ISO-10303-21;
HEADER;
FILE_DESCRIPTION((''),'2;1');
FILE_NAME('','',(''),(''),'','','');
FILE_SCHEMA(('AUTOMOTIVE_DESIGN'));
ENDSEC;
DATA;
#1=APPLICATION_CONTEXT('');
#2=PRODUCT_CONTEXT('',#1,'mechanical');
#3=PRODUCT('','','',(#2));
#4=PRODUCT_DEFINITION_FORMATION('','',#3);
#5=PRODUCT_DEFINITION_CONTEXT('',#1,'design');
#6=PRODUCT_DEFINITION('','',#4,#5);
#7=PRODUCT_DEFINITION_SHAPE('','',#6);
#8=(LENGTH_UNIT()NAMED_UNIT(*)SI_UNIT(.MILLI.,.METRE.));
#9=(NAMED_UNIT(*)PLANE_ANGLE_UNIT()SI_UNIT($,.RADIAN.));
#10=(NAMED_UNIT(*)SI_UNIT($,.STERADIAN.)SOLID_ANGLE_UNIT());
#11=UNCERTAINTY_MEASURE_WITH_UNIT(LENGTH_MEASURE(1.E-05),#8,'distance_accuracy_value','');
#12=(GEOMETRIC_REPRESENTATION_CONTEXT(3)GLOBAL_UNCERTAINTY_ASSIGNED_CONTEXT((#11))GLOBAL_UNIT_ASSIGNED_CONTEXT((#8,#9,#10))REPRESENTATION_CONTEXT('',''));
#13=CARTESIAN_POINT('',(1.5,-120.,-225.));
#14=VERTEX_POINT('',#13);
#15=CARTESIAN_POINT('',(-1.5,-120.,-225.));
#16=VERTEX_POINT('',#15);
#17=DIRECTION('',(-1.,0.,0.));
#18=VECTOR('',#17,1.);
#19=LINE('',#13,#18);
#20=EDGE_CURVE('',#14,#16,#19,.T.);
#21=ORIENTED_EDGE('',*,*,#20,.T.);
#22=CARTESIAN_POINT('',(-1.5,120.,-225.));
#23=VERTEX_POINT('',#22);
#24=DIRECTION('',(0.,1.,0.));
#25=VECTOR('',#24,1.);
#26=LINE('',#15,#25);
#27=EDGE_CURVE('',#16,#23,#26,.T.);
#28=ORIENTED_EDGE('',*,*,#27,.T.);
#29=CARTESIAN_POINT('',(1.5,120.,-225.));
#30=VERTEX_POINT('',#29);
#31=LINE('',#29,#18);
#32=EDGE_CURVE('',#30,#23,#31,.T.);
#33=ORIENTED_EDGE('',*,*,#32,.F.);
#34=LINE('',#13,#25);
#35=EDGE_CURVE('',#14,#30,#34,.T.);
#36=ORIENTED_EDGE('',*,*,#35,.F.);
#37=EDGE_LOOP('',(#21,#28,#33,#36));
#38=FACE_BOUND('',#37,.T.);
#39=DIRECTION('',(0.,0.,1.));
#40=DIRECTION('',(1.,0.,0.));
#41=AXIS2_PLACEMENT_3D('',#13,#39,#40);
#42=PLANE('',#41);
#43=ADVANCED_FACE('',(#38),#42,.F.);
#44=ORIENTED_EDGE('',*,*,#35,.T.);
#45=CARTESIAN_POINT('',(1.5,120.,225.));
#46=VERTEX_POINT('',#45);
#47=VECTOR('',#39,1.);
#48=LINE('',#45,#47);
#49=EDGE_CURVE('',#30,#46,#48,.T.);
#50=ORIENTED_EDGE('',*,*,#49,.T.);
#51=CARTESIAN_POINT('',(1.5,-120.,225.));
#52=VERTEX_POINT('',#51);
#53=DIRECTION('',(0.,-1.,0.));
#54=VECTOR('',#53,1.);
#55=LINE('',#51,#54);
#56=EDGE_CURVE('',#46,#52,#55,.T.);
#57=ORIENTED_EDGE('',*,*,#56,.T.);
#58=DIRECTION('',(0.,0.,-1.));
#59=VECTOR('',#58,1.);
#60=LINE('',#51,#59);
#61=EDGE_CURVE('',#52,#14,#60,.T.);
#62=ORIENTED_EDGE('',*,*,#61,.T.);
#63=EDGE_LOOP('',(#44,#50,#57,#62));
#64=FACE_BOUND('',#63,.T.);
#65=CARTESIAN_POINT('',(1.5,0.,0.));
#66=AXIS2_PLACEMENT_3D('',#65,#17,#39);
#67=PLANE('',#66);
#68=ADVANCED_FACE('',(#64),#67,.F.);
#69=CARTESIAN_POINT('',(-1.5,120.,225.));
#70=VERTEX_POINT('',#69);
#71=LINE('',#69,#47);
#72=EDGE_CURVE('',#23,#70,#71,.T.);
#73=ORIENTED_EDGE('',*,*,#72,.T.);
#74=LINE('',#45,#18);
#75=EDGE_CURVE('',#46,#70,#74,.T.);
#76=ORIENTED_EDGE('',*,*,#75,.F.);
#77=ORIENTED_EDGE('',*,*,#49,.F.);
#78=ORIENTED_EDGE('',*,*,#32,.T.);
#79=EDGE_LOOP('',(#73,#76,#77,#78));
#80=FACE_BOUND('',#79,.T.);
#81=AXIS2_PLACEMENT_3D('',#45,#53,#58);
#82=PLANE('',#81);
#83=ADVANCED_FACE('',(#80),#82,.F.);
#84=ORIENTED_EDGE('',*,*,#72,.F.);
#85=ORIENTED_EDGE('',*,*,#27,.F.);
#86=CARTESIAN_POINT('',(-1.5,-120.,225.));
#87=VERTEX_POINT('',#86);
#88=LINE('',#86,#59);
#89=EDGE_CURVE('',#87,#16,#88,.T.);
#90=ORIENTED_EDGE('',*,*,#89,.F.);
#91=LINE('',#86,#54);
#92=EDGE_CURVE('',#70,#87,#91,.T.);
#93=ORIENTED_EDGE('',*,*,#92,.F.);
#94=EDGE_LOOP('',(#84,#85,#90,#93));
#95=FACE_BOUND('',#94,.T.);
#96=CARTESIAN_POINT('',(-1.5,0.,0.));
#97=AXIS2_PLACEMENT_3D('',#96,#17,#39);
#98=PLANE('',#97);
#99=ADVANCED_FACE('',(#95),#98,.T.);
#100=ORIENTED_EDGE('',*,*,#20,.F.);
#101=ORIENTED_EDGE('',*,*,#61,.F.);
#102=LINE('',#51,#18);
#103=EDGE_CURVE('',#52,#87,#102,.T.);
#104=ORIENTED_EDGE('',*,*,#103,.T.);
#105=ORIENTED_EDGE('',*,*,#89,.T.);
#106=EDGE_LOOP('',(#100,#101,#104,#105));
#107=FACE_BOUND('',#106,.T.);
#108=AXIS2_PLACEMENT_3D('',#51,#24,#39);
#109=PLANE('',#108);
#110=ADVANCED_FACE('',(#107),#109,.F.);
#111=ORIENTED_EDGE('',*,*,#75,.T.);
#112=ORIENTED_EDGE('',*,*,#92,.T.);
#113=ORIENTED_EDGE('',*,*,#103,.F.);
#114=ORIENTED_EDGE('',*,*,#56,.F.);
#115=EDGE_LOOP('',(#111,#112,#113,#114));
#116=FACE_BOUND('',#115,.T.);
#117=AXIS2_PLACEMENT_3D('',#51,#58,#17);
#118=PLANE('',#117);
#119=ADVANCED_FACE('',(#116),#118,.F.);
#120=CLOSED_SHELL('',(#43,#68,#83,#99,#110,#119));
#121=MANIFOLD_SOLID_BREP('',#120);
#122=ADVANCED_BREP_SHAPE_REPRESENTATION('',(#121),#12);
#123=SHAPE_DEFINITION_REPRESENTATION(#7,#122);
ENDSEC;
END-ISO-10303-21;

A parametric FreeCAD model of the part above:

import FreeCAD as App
import Part
import Sketcher

V = App.Vector
Q = App.Units.Quantity


def add_polygon(sketch, points):
    """Adds a closed chain of lines whose ends are joined by coincident constraints."""
    first, n = sketch.GeometryCount, len(points)
    for a, b in zip(points, points[1:] + points[:1]):
        sketch.addGeometry(Part.LineSegment(App.Vector(*a, 0), App.Vector(*b, 0)), False)
    for i in range(n):
        sketch.addConstraint(Sketcher.Constraint("Coincident", first + i, 2, first + (i + 1) % n, 1))

doc = App.newDocument("Part")
body = doc.addObject("PartDesign::Body", "Body")

# Sketch on YZ plane
sketch1 = doc.addObject("Sketcher::SketchObject", "Sketch")
body.addObject(sketch1)
sketch1.AttachmentSupport = (doc.YZ_Plane, [""])
sketch1.MapMode = "FlatFace"
add_polygon(sketch1, [(120, 225), (-120, 225), (-120, -225), (120, -225)])  # lines 0-3
sketch1.addConstraint([
    Sketcher.Constraint("Horizontal", 0),
    Sketcher.Constraint("Vertical", 1),
    Sketcher.Constraint("Horizontal", 2),
    Sketcher.Constraint("Vertical", 3),
    Sketcher.Constraint("Symmetric", 0, 2, 2, 2, -1, 1),
    Sketcher.Constraint("DistanceX", 0, 2, 0, 1, Q("240 mm")),
    Sketcher.Constraint("DistanceY", 1, 2, 1, 1, Q("450 mm")),
])
pad1 = doc.addObject("PartDesign::Pad", "Pad")
body.addObject(pad1)
pad1.Profile = sketch1
pad1.Length = 3
pad1.Midplane = True

doc.recompute()
